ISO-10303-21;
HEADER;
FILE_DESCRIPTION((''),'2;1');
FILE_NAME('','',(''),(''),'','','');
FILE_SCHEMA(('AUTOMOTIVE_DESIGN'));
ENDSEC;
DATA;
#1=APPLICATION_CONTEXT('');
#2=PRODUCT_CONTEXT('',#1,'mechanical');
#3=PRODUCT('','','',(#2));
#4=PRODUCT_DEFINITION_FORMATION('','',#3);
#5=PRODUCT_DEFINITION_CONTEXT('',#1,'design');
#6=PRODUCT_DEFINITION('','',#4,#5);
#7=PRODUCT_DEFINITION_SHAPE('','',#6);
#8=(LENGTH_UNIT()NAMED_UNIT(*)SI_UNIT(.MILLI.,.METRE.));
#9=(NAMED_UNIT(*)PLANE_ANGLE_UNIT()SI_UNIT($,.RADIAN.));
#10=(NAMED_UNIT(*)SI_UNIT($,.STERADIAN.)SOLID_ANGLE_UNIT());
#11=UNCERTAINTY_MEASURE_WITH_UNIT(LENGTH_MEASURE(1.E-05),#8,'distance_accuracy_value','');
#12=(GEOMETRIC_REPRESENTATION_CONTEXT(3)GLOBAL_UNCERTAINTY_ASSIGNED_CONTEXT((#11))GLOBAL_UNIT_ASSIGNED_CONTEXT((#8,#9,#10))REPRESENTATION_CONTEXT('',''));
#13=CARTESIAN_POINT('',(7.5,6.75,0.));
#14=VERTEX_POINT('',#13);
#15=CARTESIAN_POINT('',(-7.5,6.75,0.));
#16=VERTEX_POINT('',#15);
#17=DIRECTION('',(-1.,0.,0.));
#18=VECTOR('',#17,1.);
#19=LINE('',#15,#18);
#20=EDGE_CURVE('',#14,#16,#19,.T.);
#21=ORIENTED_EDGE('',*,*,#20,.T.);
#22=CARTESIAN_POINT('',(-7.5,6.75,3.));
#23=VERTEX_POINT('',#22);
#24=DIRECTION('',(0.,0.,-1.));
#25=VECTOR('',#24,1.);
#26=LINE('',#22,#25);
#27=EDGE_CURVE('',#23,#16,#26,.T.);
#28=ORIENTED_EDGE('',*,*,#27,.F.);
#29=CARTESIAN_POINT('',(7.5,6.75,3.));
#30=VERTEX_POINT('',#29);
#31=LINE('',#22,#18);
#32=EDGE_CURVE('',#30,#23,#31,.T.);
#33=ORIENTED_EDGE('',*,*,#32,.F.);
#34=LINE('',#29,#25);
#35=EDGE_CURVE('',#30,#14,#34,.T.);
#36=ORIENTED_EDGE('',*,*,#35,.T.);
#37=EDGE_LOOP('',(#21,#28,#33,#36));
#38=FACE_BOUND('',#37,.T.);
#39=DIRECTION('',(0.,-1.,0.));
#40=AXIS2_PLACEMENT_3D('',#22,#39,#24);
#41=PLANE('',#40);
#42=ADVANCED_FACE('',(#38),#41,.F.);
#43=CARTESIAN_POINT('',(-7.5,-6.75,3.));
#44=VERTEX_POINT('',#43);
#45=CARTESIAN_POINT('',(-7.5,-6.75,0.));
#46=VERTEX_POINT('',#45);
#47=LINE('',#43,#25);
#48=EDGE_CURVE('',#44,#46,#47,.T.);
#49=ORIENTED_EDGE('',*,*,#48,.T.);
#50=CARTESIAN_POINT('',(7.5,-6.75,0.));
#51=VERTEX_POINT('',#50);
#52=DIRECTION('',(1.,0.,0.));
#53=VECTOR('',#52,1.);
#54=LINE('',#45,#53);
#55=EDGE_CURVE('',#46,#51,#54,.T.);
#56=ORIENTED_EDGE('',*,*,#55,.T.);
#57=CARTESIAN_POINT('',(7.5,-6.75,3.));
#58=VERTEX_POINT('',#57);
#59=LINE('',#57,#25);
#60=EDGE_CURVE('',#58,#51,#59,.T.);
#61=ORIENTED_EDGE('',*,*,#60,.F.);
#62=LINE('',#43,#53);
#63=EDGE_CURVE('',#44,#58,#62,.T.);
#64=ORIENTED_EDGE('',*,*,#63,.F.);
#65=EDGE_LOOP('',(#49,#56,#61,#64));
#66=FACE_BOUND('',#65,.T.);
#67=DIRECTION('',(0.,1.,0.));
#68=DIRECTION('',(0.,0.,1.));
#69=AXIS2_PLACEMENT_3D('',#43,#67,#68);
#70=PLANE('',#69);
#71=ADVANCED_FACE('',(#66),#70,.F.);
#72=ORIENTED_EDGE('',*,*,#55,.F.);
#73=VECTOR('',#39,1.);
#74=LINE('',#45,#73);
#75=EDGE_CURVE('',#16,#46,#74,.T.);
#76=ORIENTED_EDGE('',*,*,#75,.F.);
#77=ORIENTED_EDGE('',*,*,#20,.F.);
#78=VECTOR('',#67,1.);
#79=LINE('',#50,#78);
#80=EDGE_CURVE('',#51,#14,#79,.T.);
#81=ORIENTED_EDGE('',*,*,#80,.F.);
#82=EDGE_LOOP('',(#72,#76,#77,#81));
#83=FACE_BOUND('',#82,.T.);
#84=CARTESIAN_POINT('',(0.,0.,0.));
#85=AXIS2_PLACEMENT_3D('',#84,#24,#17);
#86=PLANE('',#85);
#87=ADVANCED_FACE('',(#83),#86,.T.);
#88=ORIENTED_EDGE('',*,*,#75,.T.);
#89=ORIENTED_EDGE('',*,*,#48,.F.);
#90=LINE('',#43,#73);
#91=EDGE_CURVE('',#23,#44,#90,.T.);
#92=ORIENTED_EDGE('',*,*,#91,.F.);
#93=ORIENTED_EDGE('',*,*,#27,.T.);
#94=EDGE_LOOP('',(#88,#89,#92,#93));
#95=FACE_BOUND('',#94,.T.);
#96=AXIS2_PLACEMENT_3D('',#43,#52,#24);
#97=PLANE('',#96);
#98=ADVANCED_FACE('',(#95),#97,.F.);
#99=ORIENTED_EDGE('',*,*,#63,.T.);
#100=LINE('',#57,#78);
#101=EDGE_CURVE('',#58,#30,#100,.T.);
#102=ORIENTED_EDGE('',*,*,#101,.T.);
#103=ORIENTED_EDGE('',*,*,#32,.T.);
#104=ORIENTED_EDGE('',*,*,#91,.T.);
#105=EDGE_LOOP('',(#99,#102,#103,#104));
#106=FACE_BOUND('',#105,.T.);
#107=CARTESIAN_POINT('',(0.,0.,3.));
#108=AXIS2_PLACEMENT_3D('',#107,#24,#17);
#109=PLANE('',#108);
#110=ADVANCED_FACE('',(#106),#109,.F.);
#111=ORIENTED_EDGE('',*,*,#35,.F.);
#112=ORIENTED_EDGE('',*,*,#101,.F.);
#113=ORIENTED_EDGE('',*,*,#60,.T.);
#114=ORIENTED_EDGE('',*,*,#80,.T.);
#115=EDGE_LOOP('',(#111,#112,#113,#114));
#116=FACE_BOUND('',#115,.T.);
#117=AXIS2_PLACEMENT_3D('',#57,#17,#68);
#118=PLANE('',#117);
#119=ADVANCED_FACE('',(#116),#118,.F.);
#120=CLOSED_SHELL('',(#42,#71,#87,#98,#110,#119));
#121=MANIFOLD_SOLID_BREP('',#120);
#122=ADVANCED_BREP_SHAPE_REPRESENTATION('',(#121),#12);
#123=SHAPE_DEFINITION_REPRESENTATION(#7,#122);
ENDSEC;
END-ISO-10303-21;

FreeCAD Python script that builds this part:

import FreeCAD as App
import Part
import Sketcher
Q = App.Units.Quantity

doc = App.newDocument("Part")
params = doc.addObject("Spreadsheet::Sheet", "Params")
for row, (alias, value) in enumerate([
    ("sketch1_width", "15 mm"),
    ("sketch1_height", "13.5 mm"),
    ("pad1_length", "3 mm"),
], start=1):
    params.set(f"A{row}", alias)
    params.set(f"B{row}", "=" + value)
    params.setAlias(f"B{row}", alias)

body = doc.addObject("PartDesign::Body", "Body")

sketch1 = body.newObject("Sketcher::SketchObject", "Sketch")
sketch1.AttachmentSupport = (doc.getObject("XY_Plane"), [""])
sketch1.MapMode = "FlatFace"
sketch1.addGeometry(Part.LineSegment(App.Vector(-7.5, 6.75, 0), App.Vector(-7.5, -6.75, 0)), False)
sketch1.addGeometry(Part.LineSegment(App.Vector(-7.5, -6.75, 0), App.Vector(7.5, -6.75, 0)), False)
sketch1.addGeometry(Part.LineSegment(App.Vector(7.5, -6.75, 0), App.Vector(7.5, 6.75, 0)), False)
sketch1.addGeometry(Part.LineSegment(App.Vector(7.5, 6.75, 0), App.Vector(-7.5, 6.75, 0)), False)
sketch1.addConstraint(Sketcher.Constraint("Coincident", 0, 2, 1, 1))
sketch1.addConstraint(Sketcher.Constraint("Coincident", 1, 2, 2, 1))
sketch1.addConstraint(Sketcher.Constraint("Coincident", 2, 2, 3, 1))
sketch1.addConstraint(Sketcher.Constraint("Coincident", 3, 2, 0, 1))
sketch1.addConstraint(Sketcher.Constraint("Vertical", 0))
sketch1.addConstraint(Sketcher.Constraint("Horizontal", 1))
sketch1.addConstraint(Sketcher.Constraint("Vertical", 2))
sketch1.addConstraint(Sketcher.Constraint("Horizontal", 3))
sketch1.addConstraint(Sketcher.Constraint("Symmetric", 0, 2, 2, 2, -1, 1))
sketch1.addConstraint(Sketcher.Constraint("DistanceX", 1, 1, 1, 2, Q("15 mm")))
sketch1.addConstraint(Sketcher.Constraint("DistanceY", 0, 2, 0, 1, Q("13.5 mm")))
sketch1.setExpression("Constraints[9]", "Params.sketch1_width")
sketch1.setExpression("Constraints[10]", "Params.sketch1_height")
pad1 = body.newObject("PartDesign::Pad", "Pad")
pad1.Profile = sketch1
pad1.setExpression("Length", "Params.pad1_length")

doc.recompute()
